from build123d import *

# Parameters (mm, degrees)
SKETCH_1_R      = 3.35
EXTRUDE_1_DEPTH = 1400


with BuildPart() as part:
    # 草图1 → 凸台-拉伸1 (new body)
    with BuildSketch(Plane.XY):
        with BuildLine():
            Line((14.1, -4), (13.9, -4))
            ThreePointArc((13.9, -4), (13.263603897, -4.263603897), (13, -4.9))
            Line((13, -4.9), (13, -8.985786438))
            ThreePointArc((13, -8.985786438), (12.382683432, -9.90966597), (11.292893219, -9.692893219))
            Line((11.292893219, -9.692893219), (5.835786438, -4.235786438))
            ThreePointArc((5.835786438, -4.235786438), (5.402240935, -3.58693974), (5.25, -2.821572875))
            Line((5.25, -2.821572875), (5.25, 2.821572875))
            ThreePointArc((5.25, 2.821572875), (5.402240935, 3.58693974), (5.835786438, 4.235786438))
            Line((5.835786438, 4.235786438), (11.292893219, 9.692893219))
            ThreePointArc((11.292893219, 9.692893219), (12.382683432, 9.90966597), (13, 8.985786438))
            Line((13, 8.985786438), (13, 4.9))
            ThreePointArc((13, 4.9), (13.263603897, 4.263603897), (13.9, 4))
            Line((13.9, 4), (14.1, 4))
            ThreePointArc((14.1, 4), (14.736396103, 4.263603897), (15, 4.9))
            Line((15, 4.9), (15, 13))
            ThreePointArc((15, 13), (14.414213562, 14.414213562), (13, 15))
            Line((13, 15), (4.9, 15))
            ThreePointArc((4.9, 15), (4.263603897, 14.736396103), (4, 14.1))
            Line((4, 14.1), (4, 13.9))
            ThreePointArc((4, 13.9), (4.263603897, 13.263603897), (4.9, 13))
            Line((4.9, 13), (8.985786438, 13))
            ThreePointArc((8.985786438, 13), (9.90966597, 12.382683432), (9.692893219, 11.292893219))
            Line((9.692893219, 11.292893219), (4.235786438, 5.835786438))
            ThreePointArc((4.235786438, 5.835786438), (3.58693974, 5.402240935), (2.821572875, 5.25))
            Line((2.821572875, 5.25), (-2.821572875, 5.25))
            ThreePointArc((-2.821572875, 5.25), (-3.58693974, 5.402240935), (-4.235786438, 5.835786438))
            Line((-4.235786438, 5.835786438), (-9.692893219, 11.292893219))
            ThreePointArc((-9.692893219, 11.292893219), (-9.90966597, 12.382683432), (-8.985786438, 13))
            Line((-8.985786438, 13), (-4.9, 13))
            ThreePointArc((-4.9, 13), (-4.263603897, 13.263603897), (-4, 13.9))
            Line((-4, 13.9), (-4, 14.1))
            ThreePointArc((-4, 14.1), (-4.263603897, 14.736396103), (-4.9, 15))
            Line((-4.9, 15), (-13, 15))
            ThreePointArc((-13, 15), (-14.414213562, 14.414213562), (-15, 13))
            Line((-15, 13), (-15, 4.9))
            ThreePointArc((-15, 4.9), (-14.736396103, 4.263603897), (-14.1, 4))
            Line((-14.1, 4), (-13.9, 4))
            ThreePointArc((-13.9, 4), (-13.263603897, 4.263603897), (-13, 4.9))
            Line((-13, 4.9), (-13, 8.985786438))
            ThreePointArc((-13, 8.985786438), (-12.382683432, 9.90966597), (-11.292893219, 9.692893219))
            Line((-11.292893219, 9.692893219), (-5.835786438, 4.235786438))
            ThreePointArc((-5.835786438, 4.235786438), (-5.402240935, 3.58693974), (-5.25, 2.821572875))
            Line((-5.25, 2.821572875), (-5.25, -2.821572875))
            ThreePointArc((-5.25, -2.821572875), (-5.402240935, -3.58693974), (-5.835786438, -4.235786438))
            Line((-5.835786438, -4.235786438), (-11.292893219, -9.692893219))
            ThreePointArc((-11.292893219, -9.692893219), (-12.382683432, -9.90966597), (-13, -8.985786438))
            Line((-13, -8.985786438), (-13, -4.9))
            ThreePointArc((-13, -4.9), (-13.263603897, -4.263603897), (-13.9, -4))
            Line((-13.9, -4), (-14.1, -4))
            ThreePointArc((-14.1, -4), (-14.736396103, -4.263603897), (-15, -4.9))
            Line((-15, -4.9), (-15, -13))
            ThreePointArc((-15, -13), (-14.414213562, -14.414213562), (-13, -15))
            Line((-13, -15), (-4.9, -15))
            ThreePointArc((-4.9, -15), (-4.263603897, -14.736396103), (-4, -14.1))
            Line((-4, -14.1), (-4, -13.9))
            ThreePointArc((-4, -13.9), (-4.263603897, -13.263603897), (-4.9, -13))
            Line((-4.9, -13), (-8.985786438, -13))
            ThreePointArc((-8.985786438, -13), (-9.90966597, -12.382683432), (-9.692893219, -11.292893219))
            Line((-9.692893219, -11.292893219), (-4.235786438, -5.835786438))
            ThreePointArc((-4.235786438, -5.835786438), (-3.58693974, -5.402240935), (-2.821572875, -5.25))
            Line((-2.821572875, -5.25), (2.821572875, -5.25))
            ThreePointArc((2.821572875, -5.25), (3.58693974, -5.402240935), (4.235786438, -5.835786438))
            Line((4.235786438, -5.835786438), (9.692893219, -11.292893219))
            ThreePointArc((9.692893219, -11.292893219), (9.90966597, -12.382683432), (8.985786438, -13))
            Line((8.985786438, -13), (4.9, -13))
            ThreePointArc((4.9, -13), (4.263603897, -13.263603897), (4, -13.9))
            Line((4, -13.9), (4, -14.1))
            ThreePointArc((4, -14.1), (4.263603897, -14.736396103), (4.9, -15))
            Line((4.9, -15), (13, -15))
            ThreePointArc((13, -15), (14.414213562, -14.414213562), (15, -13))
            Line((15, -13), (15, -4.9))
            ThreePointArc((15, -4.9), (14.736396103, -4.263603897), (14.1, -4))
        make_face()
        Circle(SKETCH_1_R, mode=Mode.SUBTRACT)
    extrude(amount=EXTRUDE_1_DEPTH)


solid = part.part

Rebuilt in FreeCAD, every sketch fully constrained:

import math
import FreeCAD as App
import Part
import Sketcher
from FreeCAD import Vector

doc = App.newDocument("Part")
body = doc.addObject("PartDesign::Body", "Body")

sketch1 = body.newObject("Sketcher::SketchObject", "Sketch")
sketch1.AttachmentSupport = (doc.getObject("XY_Plane"), [""])
sketch1.MapMode = "FlatFace"
sketch1.addGeometry([
    Part.LineSegment(Vector(14.1, -4, 0), Vector(13.9, -4, 0)),
    Part.ArcOfCircle(Part.Circle(Vector(13.9, -4.9, 0), Vector(0, 0, 1), 0.9), math.radians(90), math.radians(180)),
    Part.LineSegment(Vector(13, -4.9, 0), Vector(13, -8.99, 0)),
    Part.ArcOfCircle(Part.Circle(Vector(12, -8.99, 0), Vector(0, 0, 1), 1), math.radians(-135), math.radians(0)),
    Part.LineSegment(Vector(11.29, -9.69, 0), Vector(5.84, -4.24, 0)),
    Part.ArcOfCircle(Part.Circle(Vector(7.25, -2.82, 0), Vector(0, 0, 1), 2), math.radians(180), math.radians(225)),
    Part.LineSegment(Vector(5.25, -2.82, 0), Vector(5.25, 2.82, 0)),
    Part.ArcOfCircle(Part.Circle(Vector(7.25, 2.82, 0), Vector(0, 0, 1), 2), math.radians(135), math.radians(180)),
    Part.LineSegment(Vector(5.84, 4.24, 0), Vector(11.29, 9.69, 0)),
    Part.ArcOfCircle(Part.Circle(Vector(12, 8.99, 0), Vector(0, 0, 1), 1), math.radians(0), math.radians(135)),
    Part.LineSegment(Vector(13, 8.99, 0), Vector(13, 4.9, 0)),
    Part.ArcOfCircle(Part.Circle(Vector(13.9, 4.9, 0), Vector(0, 0, 1), 0.9), math.radians(180), math.radians(270)),
    Part.LineSegment(Vector(13.9, 4, 0), Vector(14.1, 4, 0)),
    Part.ArcOfCircle(Part.Circle(Vector(14.1, 4.9, 0), Vector(0, 0, 1), 0.9), math.radians(-90), math.radians(0)),
    Part.LineSegment(Vector(15, 4.9, 0), Vector(15, 13, 0)),
    Part.ArcOfCircle(Part.Circle(Vector(13, 13, 0), Vector(0, 0, 1), 2), math.radians(0), math.radians(90)),
    Part.LineSegment(Vector(13, 15, 0), Vector(4.9, 15, 0)),
    Part.ArcOfCircle(Part.Circle(Vector(4.9, 14.1, 0), Vector(0, 0, 1), 0.9), math.radians(90), math.radians(180)),
    Part.LineSegment(Vector(4, 14.1, 0), Vector(4, 13.9, 0)),
    Part.ArcOfCircle(Part.Circle(Vector(4.9, 13.9, 0), Vector(0, 0, 1), 0.9), math.radians(180), math.radians(270)),
    Part.LineSegment(Vector(4.9, 13, 0), Vector(8.99, 13, 0)),
    Part.ArcOfCircle(Part.Circle(Vector(8.99, 12, 0), Vector(0, 0, 1), 1), math.radians(-45), math.radians(90)),
    Part.LineSegment(Vector(9.69, 11.29, 0), Vector(4.24, 5.84, 0)),
    Part.ArcOfCircle(Part.Circle(Vector(2.82, 7.25, 0), Vector(0, 0, 1), 2), math.radians(-90), math.radians(-45)),
    Part.LineSegment(Vector(2.82, 5.25, 0), Vector(-2.82, 5.25, 0)),
    Part.ArcOfCircle(Part.Circle(Vector(-2.82, 7.25, 0), Vector(0, 0, 1), 2), math.radians(-135), math.radians(-90)),
    Part.LineSegment(Vector(-4.24, 5.84, 0), Vector(-9.69, 11.29, 0)),
    Part.ArcOfCircle(Part.Circle(Vector(-8.99, 12, 0), Vector(0, 0, 1), 1), math.radians(90), math.radians(225)),
    Part.LineSegment(Vector(-8.99, 13, 0), Vector(-4.9, 13, 0)),
    Part.ArcOfCircle(Part.Circle(Vector(-4.9, 13.9, 0), Vector(0, 0, 1), 0.9), math.radians(-90), math.radians(0)),
    Part.LineSegment(Vector(-4, 13.9, 0), Vector(-4, 14.1, 0)),
    Part.ArcOfCircle(Part.Circle(Vector(-4.9, 14.1, 0), Vector(0, 0, 1), 0.9), math.radians(0), math.radians(90)),
    Part.LineSegment(Vector(-4.9, 15, 0), Vector(-13, 15, 0)),
    Part.ArcOfCircle(Part.Circle(Vector(-13, 13, 0), Vector(0, 0, 1), 2), math.radians(90), math.radians(180)),
    Part.LineSegment(Vector(-15, 13, 0), Vector(-15, 4.9, 0)),
    Part.ArcOfCircle(Part.Circle(Vector(-14.1, 4.9, 0), Vector(0, 0, 1), 0.9), math.radians(180), math.radians(270)),
    Part.LineSegment(Vector(-14.1, 4, 0), Vector(-13.9, 4, 0)),
    Part.ArcOfCircle(Part.Circle(Vector(-13.9, 4.9, 0), Vector(0, 0, 1), 0.9), math.radians(-90), math.radians(0)),
    Part.LineSegment(Vector(-13, 4.9, 0), Vector(-13, 8.99, 0)),
    Part.ArcOfCircle(Part.Circle(Vector(-12, 8.99, 0), Vector(0, 0, 1), 1), math.radians(45), math.radians(180)),
    Part.LineSegment(Vector(-11.29, 9.69, 0), Vector(-5.84, 4.24, 0)),
    Part.ArcOfCircle(Part.Circle(Vector(-7.25, 2.82, 0), Vector(0, 0, 1), 2), math.radians(0), math.radians(45)),
    Part.LineSegment(Vector(-5.25, 2.82, 0), Vector(-5.25, -2.82, 0)),
    Part.ArcOfCircle(Part.Circle(Vector(-7.25, -2.82, 0), Vector(0, 0, 1), 2), math.radians(-45), math.radians(0)),
    Part.LineSegment(Vector(-5.84, -4.24, 0), Vector(-11.29, -9.69, 0)),
    Part.ArcOfCircle(Part.Circle(Vector(-12, -8.99, 0), Vector(0, 0, 1), 1), math.radians(-180), math.radians(-45)),
    Part.LineSegment(Vector(-13, -8.99, 0), Vector(-13, -4.9, 0)),
    Part.ArcOfCircle(Part.Circle(Vector(-13.9, -4.9, 0), Vector(0, 0, 1), 0.9), math.radians(0), math.radians(90)),
    Part.LineSegment(Vector(-13.9, -4, 0), Vector(-14.1, -4, 0)),
    Part.ArcOfCircle(Part.Circle(Vector(-14.1, -4.9, 0), Vector(0, 0, 1), 0.9), math.radians(90), math.radians(180)),
    Part.LineSegment(Vector(-15, -4.9, 0), Vector(-15, -13, 0)),
    Part.ArcOfCircle(Part.Circle(Vector(-13, -13, 0), Vector(0, 0, 1), 2), math.radians(-180), math.radians(-90)),
    Part.LineSegment(Vector(-13, -15, 0), Vector(-4.9, -15, 0)),
    Part.ArcOfCircle(Part.Circle(Vector(-4.9, -14.1, 0), Vector(0, 0, 1), 0.9), math.radians(-90), math.radians(0)),
    Part.LineSegment(Vector(-4, -14.1, 0), Vector(-4, -13.9, 0)),
    Part.ArcOfCircle(Part.Circle(Vector(-4.9, -13.9, 0), Vector(0, 0, 1), 0.9), math.radians(0), math.radians(90)),
    Part.LineSegment(Vector(-4.9, -13, 0), Vector(-8.99, -13, 0)),
    Part.ArcOfCircle(Part.Circle(Vector(-8.99, -12, 0), Vector(0, 0, 1), 1), math.radians(135), math.radians(270)),
    Part.LineSegment(Vector(-9.69, -11.29, 0), Vector(-4.24, -5.84, 0)),
    Part.ArcOfCircle(Part.Circle(Vector(-2.82, -7.25, 0), Vector(0, 0, 1), 2), math.radians(90), math.radians(135)),
    Part.LineSegment(Vector(-2.82, -5.25, 0), Vector(2.82, -5.25, 0)),
    Part.ArcOfCircle(Part.Circle(Vector(2.82, -7.25, 0), Vector(0, 0, 1), 2), math.radians(45), math.radians(90)),
    Part.LineSegment(Vector(4.24, -5.84, 0), Vector(9.69, -11.29, 0)),
    Part.ArcOfCircle(Part.Circle(Vector(8.99, -12, 0), Vector(0, 0, 1), 1), math.radians(-90), math.radians(45)),
    Part.LineSegment(Vector(8.99, -13, 0), Vector(4.9, -13, 0)),
    Part.ArcOfCircle(Part.Circle(Vector(4.9, -13.9, 0), Vector(0, 0, 1), 0.9), math.radians(90), math.radians(180)),
    Part.LineSegment(Vector(4, -13.9, 0), Vector(4, -14.1, 0)),
    Part.ArcOfCircle(Part.Circle(Vector(4.9, -14.1, 0), Vector(0, 0, 1), 0.9), math.radians(180), math.radians(270)),
    Part.LineSegment(Vector(4.9, -15, 0), Vector(13, -15, 0)),
    Part.ArcOfCircle(Part.Circle(Vector(13, -13, 0), Vector(0, 0, 1), 2), math.radians(-90), math.radians(0)),
    Part.LineSegment(Vector(15, -13, 0), Vector(15, -4.9, 0)),
    Part.ArcOfCircle(Part.Circle(Vector(14.1, -4.9, 0), Vector(0, 0, 1), 0.9), math.radians(0), math.radians(90)),
    Part.Circle(Vector(0, 0, 0), Vector(0, 0, 1), 3.35),
], False)
sketch1.addConstraint([
    Sketcher.Constraint("Tangent", 0, 2, 1, 1),
    Sketcher.Constraint("Tangent", 1, 2, 2, 1),
    Sketcher.Constraint("Tangent", 2, 2, 3, 2),
    Sketcher.Constraint("Tangent", 3, 1, 4, 1),
    Sketcher.Constraint("Tangent", 4, 2, 5, 2),
    Sketcher.Constraint("Tangent", 5, 1, 6, 1),
    Sketcher.Constraint("Tangent", 6, 2, 7, 2),
    Sketcher.Constraint("Tangent", 7, 1, 8, 1),
    Sketcher.Constraint("Tangent", 8, 2, 9, 2),
    Sketcher.Constraint("Tangent", 9, 1, 10, 1),
    Sketcher.Constraint("Tangent", 10, 2, 11, 1),
    Sketcher.Constraint("Tangent", 11, 2, 12, 1),
    Sketcher.Constraint("Tangent", 12, 2, 13, 1),
    Sketcher.Constraint("Tangent", 13, 2, 14, 1),
    Sketcher.Constraint("Tangent", 14, 2, 15, 1),
    Sketcher.Constraint("Tangent", 15, 2, 16, 1),
    Sketcher.Constraint("Tangent", 16, 2, 17, 1),
    Sketcher.Constraint("Tangent", 17, 2, 18, 1),
    Sketcher.Constraint("Tangent", 18, 2, 19, 1),
    Sketcher.Constraint("Tangent", 19, 2, 20, 1),
    Sketcher.Constraint("Tangent", 20, 2, 21, 2),
    Sketcher.Constraint("Tangent", 21, 1, 22, 1),
    Sketcher.Constraint("Tangent", 22, 2, 23, 2),
    Sketcher.Constraint("Tangent", 23, 1, 24, 1),
    Sketcher.Constraint("Tangent", 24, 2, 25, 2),
    Sketcher.Constraint("Tangent", 25, 1, 26, 1),
    Sketcher.Constraint("Tangent", 26, 2, 27, 2),
    Sketcher.Constraint("Tangent", 27, 1, 28, 1),
    Sketcher.Constraint("Tangent", 28, 2, 29, 1),
    Sketcher.Constraint("Tangent", 29, 2, 30, 1),
    Sketcher.Constraint("Tangent", 30, 2, 31, 1),
    Sketcher.Constraint("Tangent", 31, 2, 32, 1),
    Sketcher.Constraint("Tangent", 32, 2, 33, 1),
    Sketcher.Constraint("Tangent", 33, 2, 34, 1),
    Sketcher.Constraint("Tangent", 34, 2, 35, 1),
    Sketcher.Constraint("Tangent", 35, 2, 36, 1),
    Sketcher.Constraint("Tangent", 36, 2, 37, 1),
    Sketcher.Constraint("Tangent", 37, 2, 38, 1),
    Sketcher.Constraint("Tangent", 38, 2, 39, 2),
    Sketcher.Constraint("Tangent", 39, 1, 40, 1),
    Sketcher.Constraint("Tangent", 40, 2, 41, 2),
    Sketcher.Constraint("Tangent", 41, 1, 42, 1),
    Sketcher.Constraint("Tangent", 42, 2, 43, 2),
    Sketcher.Constraint("Tangent", 43, 1, 44, 1),
    Sketcher.Constraint("Tangent", 44, 2, 45, 2),
    Sketcher.Constraint("Tangent", 45, 1, 46, 1),
    Sketcher.Constraint("Tangent", 46, 2, 47, 1),
    Sketcher.Constraint("Tangent", 47, 2, 48, 1),
    Sketcher.Constraint("Tangent", 48, 2, 49, 1),
    Sketcher.Constraint("Tangent", 49, 2, 50, 1),
    Sketcher.Constraint("Tangent", 50, 2, 51, 1),
    Sketcher.Constraint("Tangent", 51, 2, 52, 1),
    Sketcher.Constraint("Tangent", 52, 2, 53, 1),
    Sketcher.Constraint("Tangent", 53, 2, 54, 1),
    Sketcher.Constraint("Tangent", 54, 2, 55, 1),
    Sketcher.Constraint("Tangent", 55, 2, 56, 1),
    Sketcher.Constraint("Tangent", 56, 2, 57, 2),
    Sketcher.Constraint("Tangent", 57, 1, 58, 1),
    Sketcher.Constraint("Tangent", 58, 2, 59, 2),
    Sketcher.Constraint("Tangent", 59, 1, 60, 1),
    Sketcher.Constraint("Tangent", 60, 2, 61, 2),
    Sketcher.Constraint("Tangent", 61, 1, 62, 1),
    Sketcher.Constraint("Tangent", 62, 2, 63, 2),
    Sketcher.Constraint("Tangent", 63, 1, 64, 1),
    Sketcher.Constraint("Tangent", 64, 2, 65, 1),
    Sketcher.Constraint("Tangent", 65, 2, 66, 1),
    Sketcher.Constraint("Tangent", 66, 2, 67, 1),
    Sketcher.Constraint("Tangent", 67, 2, 68, 1),
    Sketcher.Constraint("Tangent", 68, 2, 69, 1),
    Sketcher.Constraint("Tangent", 69, 2, 70, 1),
    Sketcher.Constraint("Tangent", 70, 2, 71, 1),
    Sketcher.Constraint("Tangent", 71, 2, 0, 1),
    Sketcher.Constraint("Horizontal", 0),
    Sketcher.Constraint("Vertical", 2),
    Sketcher.Constraint("Vertical", 6),
    Sketcher.Constraint("Vertical", 10),
    Sketcher.Constraint("Horizontal", 12),
    Sketcher.Constraint("Vertical", 14),
    Sketcher.Constraint("Horizontal", 16),
    Sketcher.Constraint("Vertical", 18),
    Sketcher.Constraint("Horizontal", 20),
    Sketcher.Constraint("Horizontal", 24),
    Sketcher.Constraint("Horizontal", 28),
    Sketcher.Constraint("Vertical", 30),
    Sketcher.Constraint("Horizontal", 32),
    Sketcher.Constraint("Vertical", 34),
    Sketcher.Constraint("Horizontal", 36),
    Sketcher.Constraint("Vertical", 38),
    Sketcher.Constraint("Vertical", 42),
    Sketcher.Constraint("Vertical", 46),
    Sketcher.Constraint("Horizontal", 48),
    Sketcher.Constraint("Vertical", 50),
    Sketcher.Constraint("Horizontal", 52),
    Sketcher.Constraint("Vertical", 54),
    Sketcher.Constraint("Horizontal", 56),
    Sketcher.Constraint("Horizontal", 60),
    Sketcher.Constraint("Horizontal", 64),
    Sketcher.Constraint("Vertical", 66),
    Sketcher.Constraint("Horizontal", 68),
    Sketcher.Constraint("Vertical", 70),
    Sketcher.Constraint("Coincident", 72, 3, -1, 1),
    Sketcher.Constraint("Equal", 5, 7),
    Sketcher.Constraint("Equal", 3, 9),
    Sketcher.Constraint("Equal", 1, 11),
    Sketcher.Constraint("Equal", 11, 13),
    Sketcher.Constraint("Equal", 7, 15),
    Sketcher.Constraint("Equal", 13, 17),
    Sketcher.Constraint("Equal", 17, 19),
    Sketcher.Constraint("Equal", 9, 21),
    Sketcher.Constraint("Equal", 15, 23),
    Sketcher.Constraint("Equal", 23, 25),
    Sketcher.Constraint("Equal", 21, 27),
    Sketcher.Constraint("Equal", 19, 29),
    Sketcher.Constraint("Equal", 29, 31),
    Sketcher.Constraint("Equal", 25, 33),
    Sketcher.Constraint("Equal", 31, 35),
    Sketcher.Constraint("Equal", 35, 37),
    Sketcher.Constraint("Equal", 27, 39),
    Sketcher.Constraint("Equal", 33, 41),
    Sketcher.Constraint("Equal", 41, 43),
    Sketcher.Constraint("Equal", 39, 45),
    Sketcher.Constraint("Equal", 37, 47),
    Sketcher.Constraint("Equal", 47, 49),
    Sketcher.Constraint("Equal", 43, 51),
    Sketcher.Constraint("Equal", 49, 53),
    Sketcher.Constraint("Equal", 53, 55),
    Sketcher.Constraint("Equal", 45, 57),
    Sketcher.Constraint("Equal", 51, 59),
    Sketcher.Constraint("Equal", 59, 61),
    Sketcher.Constraint("Equal", 57, 63),
    Sketcher.Constraint("Equal", 55, 65),
    Sketcher.Constraint("Equal", 65, 67),
    Sketcher.Constraint("Equal", 61, 69),
    Sketcher.Constraint("Equal", 67, 71),
    Sketcher.Constraint("Symmetric", 1, 3, 37, 3, -1, 1),
    Sketcher.Constraint("Symmetric", 5, 3, 41, 3, -1, 1),
    Sketcher.Constraint("Symmetric", 9, 3, 45, 3, -1, 1),
    Sketcher.Constraint("Symmetric", 13, 3, 49, 3, -1, 1),
    Sketcher.Constraint("Symmetric", 17, 3, 53, 3, -1, 1),
    Sketcher.Constraint("Symmetric", 21, 3, 57, 3, -1, 1),
    Sketcher.Constraint("Symmetric", 23, 3, 59, 3, -1, 1),
    Sketcher.Constraint("Symmetric", 27, 3, 63, 3, -1, 1),
    Sketcher.Constraint("Symmetric", 31, 3, 67, 3, -1, 1),
    Sketcher.Constraint("Symmetric", 21, 3, 27, 3, -2),
    Sketcher.Constraint("Symmetric", 17, 3, 31, 3, -2),
    Sketcher.Constraint("Symmetric", 13, 3, 35, 3, -2),
    Sketcher.Constraint("Symmetric", 9, 3, 39, 3, -2),
    Sketcher.Constraint("Symmetric", 4, 2, 43, 1, -2),
    Sketcher.Constraint("Perpendicular", 4, 8),
    Sketcher.Constraint("Parallel", 8, 22),
    Sketcher.Constraint("Perpendicular", 22, 26),
    Sketcher.Constraint("Perpendicular", 40, 44),
    Sketcher.Constraint("Perpendicular", 58, 62),
    Sketcher.Constraint("Horizontal", 14, 2, 19, 2),
    Sketcher.Constraint("Vertical", 15, 3, 69, 3),
    Sketcher.Constraint("Vertical", 69, 3, 1, 2),
    Sketcher.Constraint("Equal", 64, 2),
    Sketcher.Constraint("Equal", 60, 6),
    Sketcher.Constraint("Equal", 68, 14),
    Sketcher.Constraint("Equal", 8, 22),
    Sketcher.Constraint("Radius", 3, 1.0),
    Sketcher.Constraint("Radius", 5, 2.0),
    Sketcher.Constraint("Diameter", 72, 6.7),
    Sketcher.Constraint("Radius", 1, 0.9),
    Sketcher.Constraint("DistanceX", 16, 2, 16, 1, 8.1),
    Sketcher.Constraint("DistanceX", -1, 1, 3, 3, 12.0),
    Sketcher.Constraint("DistanceX", -1, 1, 5, 3, 7.25),
    Sketcher.Constraint("DistanceX", 20, 1, 20, 2, 4.085786),
])
pad1 = body.newObject("PartDesign::Pad", "Pad")
pad1.Profile = sketch1
pad1.Length = 1400

doc.recompute()
